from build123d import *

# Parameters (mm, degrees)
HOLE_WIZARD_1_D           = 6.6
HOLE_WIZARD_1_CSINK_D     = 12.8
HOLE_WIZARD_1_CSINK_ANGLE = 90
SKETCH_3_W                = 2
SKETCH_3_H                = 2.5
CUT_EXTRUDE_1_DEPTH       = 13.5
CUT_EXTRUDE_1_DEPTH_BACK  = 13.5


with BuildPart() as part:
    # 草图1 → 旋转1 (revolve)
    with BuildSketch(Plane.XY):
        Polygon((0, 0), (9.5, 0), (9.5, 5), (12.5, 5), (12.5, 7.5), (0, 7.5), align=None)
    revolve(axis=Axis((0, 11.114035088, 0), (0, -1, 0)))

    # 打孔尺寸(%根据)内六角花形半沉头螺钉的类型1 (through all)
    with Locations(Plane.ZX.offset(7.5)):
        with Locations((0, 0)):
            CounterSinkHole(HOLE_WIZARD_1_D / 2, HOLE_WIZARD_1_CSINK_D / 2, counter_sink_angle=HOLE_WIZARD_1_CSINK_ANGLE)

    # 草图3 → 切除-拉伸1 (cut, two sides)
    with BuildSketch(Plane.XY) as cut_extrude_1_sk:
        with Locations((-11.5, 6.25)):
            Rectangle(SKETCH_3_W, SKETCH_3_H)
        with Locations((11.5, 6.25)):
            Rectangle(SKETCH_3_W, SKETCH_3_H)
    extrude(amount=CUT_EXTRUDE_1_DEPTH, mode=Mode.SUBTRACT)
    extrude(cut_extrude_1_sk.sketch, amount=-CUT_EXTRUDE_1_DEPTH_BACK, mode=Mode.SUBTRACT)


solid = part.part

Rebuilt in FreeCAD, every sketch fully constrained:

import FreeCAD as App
import Part
import Sketcher
from FreeCAD import Vector


def add_polygon(sketch, points):
    """Adds a closed chain of lines whose ends are joined by coincident constraints."""
    first, n = sketch.GeometryCount, len(points)
    for a, b in zip(points, points[1:] + points[:1]):
        sketch.addGeometry(Part.LineSegment(App.Vector(*a, 0), App.Vector(*b, 0)), False)
    for i in range(n):
        sketch.addConstraint(Sketcher.Constraint("Coincident", first + i, 2, first + (i + 1) % n, 1))

doc = App.newDocument("Part")
body = doc.addObject("PartDesign::Body", "Body")

sketch1 = body.newObject("Sketcher::SketchObject", "Sketch")
sketch1.AttachmentSupport = (doc.getObject("XY_Plane"), [""])
sketch1.MapMode = "FlatFace"
add_polygon(sketch1, [(0, 0), (9.5, 0), (9.5, 5), (12.5, 5), (12.5, 7.5), (0, 7.5)])
sketch1.addConstraint(Sketcher.Constraint("Horizontal", 0))
sketch1.addConstraint(Sketcher.Constraint("Vertical", 1))
sketch1.addConstraint(Sketcher.Constraint("Horizontal", 2))
sketch1.addConstraint(Sketcher.Constraint("Vertical", 3))
sketch1.addConstraint(Sketcher.Constraint("Horizontal", 4))
sketch1.addConstraint(Sketcher.Constraint("Vertical", 5))
sketch1.addConstraint(Sketcher.Constraint("Coincident", 5, 2, -1, 1))
sketch1.addConstraint(Sketcher.Constraint("DistanceX", 2, 1, 2, 2, 3.0))
sketch1.addConstraint(Sketcher.Constraint("DistanceY", 1, 1, 1, 2, 5.0))
sketch1.addConstraint(Sketcher.Constraint("DistanceX", 0, 1, 0, 2, 9.5))
sketch1.addConstraint(Sketcher.Constraint("DistanceY", 3, 1, 3, 2, 2.5))
revolution = body.newObject("PartDesign::Revolution", "Revolution")
revolution.Profile = sketch1
revolution.ReferenceAxis = (sketch1, ["V_Axis"])
revolution.Angle = 360

sketch2 = body.newObject("Sketcher::SketchObject", "Sketch001")
sketch2.AttachmentSupport = (doc.getObject("XZ_Plane"), [""])
sketch2.MapMode = "FlatFace"
sketch2.AttachmentOffset = App.Placement(Vector(0, 0, -7.5), App.Rotation())
sketch2.addGeometry(Part.Circle(Vector(0, 0, 0), Vector(0, 0, 1), 3.3), False)
sketch2.addConstraint(Sketcher.Constraint("Coincident", 0, 3, -1, 1))
sketch2.addConstraint(Sketcher.Constraint("Diameter", 0, 6.6))
doc.recompute()
hole = body.newObject("PartDesign::Hole", "Hole")
hole.Profile = sketch2
hole.ThreadType = "None"
hole.Diameter = 6.6
hole.DepthType = "ThroughAll"
hole.HoleCutType = "Countersink"
hole.HoleCutDiameter = 12.8
hole.HoleCutCountersinkAngle = 90
hole.Reversed = True

sketch3 = body.newObject("Sketcher::SketchObject", "Sketch002")
sketch3.AttachmentSupport = (doc.getObject("XY_Plane"), [""])
sketch3.MapMode = "FlatFace"
add_polygon(sketch3, [(-12.5, 7.5), (-12.5, 5), (-10.5, 5), (-10.5, 7.5)])
add_polygon(sketch3, [(10.5, 7.5), (10.5, 5), (12.5, 5), (12.5, 7.5)])
sketch3.addConstraint(Sketcher.Constraint("Vertical", 0))
sketch3.addConstraint(Sketcher.Constraint("Horizontal", 1))
sketch3.addConstraint(Sketcher.Constraint("Vertical", 2))
sketch3.addConstraint(Sketcher.Constraint("Horizontal", 3))
sketch3.addConstraint(Sketcher.Constraint("Vertical", 4))
sketch3.addConstraint(Sketcher.Constraint("Horizontal", 5))
sketch3.addConstraint(Sketcher.Constraint("Vertical", 6))
sketch3.addConstraint(Sketcher.Constraint("Horizontal", 7))
sketch3.addConstraint(Sketcher.Constraint("Symmetric", 1, 2, 4, 2, -2))
sketch3.addConstraint(Sketcher.Constraint("Symmetric", 3, 2, 6, 2, -2))
sketch3.addConstraint(Sketcher.Constraint("DistanceX", 1, 1, 1, 2, 2.0))
sketch3.addConstraint(Sketcher.Constraint("DistanceY", 0, 2, 0, 1, 2.5))
sketch3.addConstraint(Sketcher.Constraint("DistanceY", -1, 1, 0, 2, 5.0))
sketch3.addConstraint(Sketcher.Constraint("DistanceX", 1, 2, 4, 2, 21.0))
pocket1 = body.newObject("PartDesign::Pocket", "Pocket")
pocket1.Profile = sketch3
pocket1.Type = "ThroughAll"
pocket1.Midplane = True

doc.recompute()
